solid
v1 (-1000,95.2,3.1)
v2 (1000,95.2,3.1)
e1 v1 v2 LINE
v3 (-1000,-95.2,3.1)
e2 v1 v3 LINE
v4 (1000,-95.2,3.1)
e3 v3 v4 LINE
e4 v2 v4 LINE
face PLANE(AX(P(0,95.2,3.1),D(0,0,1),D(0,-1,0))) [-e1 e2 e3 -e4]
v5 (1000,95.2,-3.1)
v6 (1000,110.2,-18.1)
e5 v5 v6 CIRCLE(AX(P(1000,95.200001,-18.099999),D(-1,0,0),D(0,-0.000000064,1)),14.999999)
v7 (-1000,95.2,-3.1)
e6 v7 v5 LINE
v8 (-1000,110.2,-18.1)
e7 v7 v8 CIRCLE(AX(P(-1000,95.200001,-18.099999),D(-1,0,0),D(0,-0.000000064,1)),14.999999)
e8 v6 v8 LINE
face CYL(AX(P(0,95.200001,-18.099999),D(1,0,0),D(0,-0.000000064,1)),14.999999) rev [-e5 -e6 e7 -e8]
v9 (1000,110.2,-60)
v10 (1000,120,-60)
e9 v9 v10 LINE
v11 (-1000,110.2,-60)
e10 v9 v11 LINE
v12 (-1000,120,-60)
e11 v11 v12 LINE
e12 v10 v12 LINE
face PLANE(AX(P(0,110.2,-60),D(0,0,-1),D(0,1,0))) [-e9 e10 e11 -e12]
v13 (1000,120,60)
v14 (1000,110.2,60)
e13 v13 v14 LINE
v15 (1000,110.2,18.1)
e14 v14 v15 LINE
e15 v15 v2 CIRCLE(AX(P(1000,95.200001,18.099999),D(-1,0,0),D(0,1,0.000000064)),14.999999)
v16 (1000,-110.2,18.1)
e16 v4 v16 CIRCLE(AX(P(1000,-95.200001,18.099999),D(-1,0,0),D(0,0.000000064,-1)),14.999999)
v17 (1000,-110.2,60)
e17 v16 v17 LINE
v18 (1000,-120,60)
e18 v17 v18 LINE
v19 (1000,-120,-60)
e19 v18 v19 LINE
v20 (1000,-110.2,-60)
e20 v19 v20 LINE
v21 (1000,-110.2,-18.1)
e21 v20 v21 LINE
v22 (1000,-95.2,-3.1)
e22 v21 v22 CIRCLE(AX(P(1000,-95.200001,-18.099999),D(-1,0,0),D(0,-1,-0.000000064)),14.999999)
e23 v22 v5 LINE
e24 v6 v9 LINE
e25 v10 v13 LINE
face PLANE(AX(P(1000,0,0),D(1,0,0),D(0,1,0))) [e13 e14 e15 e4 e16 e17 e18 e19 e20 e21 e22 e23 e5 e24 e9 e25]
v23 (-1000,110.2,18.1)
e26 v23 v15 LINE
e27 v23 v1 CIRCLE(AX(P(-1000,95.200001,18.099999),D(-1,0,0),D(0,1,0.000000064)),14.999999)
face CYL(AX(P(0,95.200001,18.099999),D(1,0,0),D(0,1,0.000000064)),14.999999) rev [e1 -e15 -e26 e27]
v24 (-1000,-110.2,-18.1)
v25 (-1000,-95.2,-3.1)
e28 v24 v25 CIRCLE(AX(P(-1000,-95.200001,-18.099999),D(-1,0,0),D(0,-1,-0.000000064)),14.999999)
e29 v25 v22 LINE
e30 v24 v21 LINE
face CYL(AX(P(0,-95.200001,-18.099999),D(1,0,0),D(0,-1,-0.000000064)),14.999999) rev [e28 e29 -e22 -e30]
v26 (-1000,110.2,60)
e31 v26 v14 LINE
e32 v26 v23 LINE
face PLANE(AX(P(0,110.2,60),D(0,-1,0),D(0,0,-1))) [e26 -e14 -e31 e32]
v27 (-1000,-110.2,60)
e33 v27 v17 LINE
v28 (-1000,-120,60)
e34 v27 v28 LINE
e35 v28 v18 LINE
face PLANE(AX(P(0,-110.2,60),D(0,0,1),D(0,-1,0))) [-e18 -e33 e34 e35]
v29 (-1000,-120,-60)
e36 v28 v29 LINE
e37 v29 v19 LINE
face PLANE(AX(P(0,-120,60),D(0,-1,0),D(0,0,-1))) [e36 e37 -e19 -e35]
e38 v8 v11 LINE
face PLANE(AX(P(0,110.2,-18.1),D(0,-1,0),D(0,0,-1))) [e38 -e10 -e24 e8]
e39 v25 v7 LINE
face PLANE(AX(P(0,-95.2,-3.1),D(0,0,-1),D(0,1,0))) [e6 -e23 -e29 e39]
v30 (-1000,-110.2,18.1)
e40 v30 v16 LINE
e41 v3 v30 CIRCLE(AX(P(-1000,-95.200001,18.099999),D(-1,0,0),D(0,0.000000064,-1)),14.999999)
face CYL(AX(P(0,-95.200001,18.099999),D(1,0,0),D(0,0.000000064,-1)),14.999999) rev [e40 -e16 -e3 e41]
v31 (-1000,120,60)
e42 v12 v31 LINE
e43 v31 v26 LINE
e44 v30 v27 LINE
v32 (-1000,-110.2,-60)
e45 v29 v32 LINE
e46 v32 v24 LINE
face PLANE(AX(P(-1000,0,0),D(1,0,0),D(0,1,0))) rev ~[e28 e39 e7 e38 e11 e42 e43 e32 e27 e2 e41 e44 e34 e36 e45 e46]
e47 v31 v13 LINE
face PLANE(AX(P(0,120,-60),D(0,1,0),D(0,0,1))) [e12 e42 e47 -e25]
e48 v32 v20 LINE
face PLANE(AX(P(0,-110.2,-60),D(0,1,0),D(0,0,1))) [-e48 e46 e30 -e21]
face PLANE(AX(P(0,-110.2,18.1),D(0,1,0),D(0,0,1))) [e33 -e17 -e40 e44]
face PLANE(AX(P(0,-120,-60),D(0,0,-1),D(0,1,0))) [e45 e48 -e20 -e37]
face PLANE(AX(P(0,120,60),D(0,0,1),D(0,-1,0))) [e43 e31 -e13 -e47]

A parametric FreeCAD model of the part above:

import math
import FreeCAD as App
import Part
import Sketcher

doc = App.newDocument("Part")
body = doc.addObject("PartDesign::Body", "Body")

# Sketch on YZ plane
sketch1 = doc.addObject("Sketcher::SketchObject", "Sketch")
body.addObject(sketch1)
sketch1.AttachmentSupport = (doc.YZ_Plane, [""])
sketch1.MapMode = "FlatFace"
sketch1.addGeometry(Part.LineSegment(App.Vector(120, -60, 0), App.Vector(120, 60, 0)), False)
sketch1.addGeometry(Part.LineSegment(App.Vector(120, 60, 0), App.Vector(110.2, 60, 0)), False)
sketch1.addGeometry(Part.LineSegment(App.Vector(110.2, 60, 0), App.Vector(110.2, 18.1, 0)), False)
sketch1.addGeometry(Part.ArcOfCircle(Part.Circle(App.Vector(95.200001, 18.099999, 0), App.Vector(0, 0, 1), 14.999999), math.radians(-90.000004), math.radians(0.000004)), False)
sketch1.addGeometry(Part.LineSegment(App.Vector(95.2, 3.1, 0), App.Vector(-95.2, 3.1, 0)), False)
sketch1.addGeometry(Part.ArcOfCircle(Part.Circle(App.Vector(-95.200001, 18.099999, 0), App.Vector(0, 0, 1), 14.999999), math.radians(179.999996), math.radians(270.000004)), False)
sketch1.addGeometry(Part.LineSegment(App.Vector(-110.2, 18.1, 0), App.Vector(-110.2, 60, 0)), False)
sketch1.addGeometry(Part.LineSegment(App.Vector(-110.2, 60, 0), App.Vector(-120, 60, 0)), False)
sketch1.addGeometry(Part.LineSegment(App.Vector(-120, 60, 0), App.Vector(-120, -60, 0)), False)
sketch1.addGeometry(Part.LineSegment(App.Vector(-120, -60, 0), App.Vector(-110.2, -60, 0)), False)
sketch1.addGeometry(Part.LineSegment(App.Vector(-110.2, -60, 0), App.Vector(-110.2, -18.1, 0)), False)
sketch1.addGeometry(Part.ArcOfCircle(Part.Circle(App.Vector(-95.200001, -18.099999, 0), App.Vector(0, 0, 1), 14.999999), math.radians(89.999996), math.radians(180.000004)), False)
sketch1.addGeometry(Part.LineSegment(App.Vector(-95.2, -3.1, 0), App.Vector(95.2, -3.1, 0)), False)
sketch1.addGeometry(Part.ArcOfCircle(Part.Circle(App.Vector(95.200001, -18.099999, 0), App.Vector(0, 0, 1), 14.999999), math.radians(-0.000004), math.radians(90.000004)), False)
sketch1.addGeometry(Part.LineSegment(App.Vector(110.2, -18.1, 0), App.Vector(110.2, -60, 0)), False)
sketch1.addGeometry(Part.LineSegment(App.Vector(110.2, -60, 0), App.Vector(120, -60, 0)), False)
sketch1.addConstraint(Sketcher.Constraint("Coincident", 0, 2, 1, 1))
sketch1.addConstraint(Sketcher.Constraint("Coincident", 1, 2, 2, 1))
sketch1.addConstraint(Sketcher.Constraint("Tangent", 2, 2, 3, 2))
sketch1.addConstraint(Sketcher.Constraint("Tangent", 3, 1, 4, 1))
sketch1.addConstraint(Sketcher.Constraint("Tangent", 4, 2, 5, 2))
sketch1.addConstraint(Sketcher.Constraint("Tangent", 5, 1, 6, 1))
sketch1.addConstraint(Sketcher.Constraint("Coincident", 6, 2, 7, 1))
sketch1.addConstraint(Sketcher.Constraint("Coincident", 7, 2, 8, 1))
sketch1.addConstraint(Sketcher.Constraint("Coincident", 8, 2, 9, 1))
sketch1.addConstraint(Sketcher.Constraint("Coincident", 9, 2, 10, 1))
sketch1.addConstraint(Sketcher.Constraint("Tangent", 10, 2, 11, 2))
sketch1.addConstraint(Sketcher.Constraint("Tangent", 11, 1, 12, 1))
sketch1.addConstraint(Sketcher.Constraint("Tangent", 12, 2, 13, 2))
sketch1.addConstraint(Sketcher.Constraint("Tangent", 13, 1, 14, 1))
sketch1.addConstraint(Sketcher.Constraint("Coincident", 14, 2, 15, 1))
sketch1.addConstraint(Sketcher.Constraint("Coincident", 15, 2, 0, 1))
sketch1.addConstraint(Sketcher.Constraint("Vertical", 0))
sketch1.addConstraint(Sketcher.Constraint("Horizontal", 1))
sketch1.addConstraint(Sketcher.Constraint("Vertical", 2))
sketch1.addConstraint(Sketcher.Constraint("Horizontal", 4))
sketch1.addConstraint(Sketcher.Constraint("Vertical", 6))
sketch1.addConstraint(Sketcher.Constraint("Horizontal", 7))
sketch1.addConstraint(Sketcher.Constraint("Vertical", 8))
sketch1.addConstraint(Sketcher.Constraint("Horizontal", 9))
sketch1.addConstraint(Sketcher.Constraint("Vertical", 10))
sketch1.addConstraint(Sketcher.Constraint("Horizontal", 12))
sketch1.addConstraint(Sketcher.Constraint("Vertical", 14))
sketch1.addConstraint(Sketcher.Constraint("Horizontal", 15))
sketch1.addConstraint(Sketcher.Constraint("Equal", 3, 5))
sketch1.addConstraint(Sketcher.Constraint("Equal", 5, 11))
sketch1.addConstraint(Sketcher.Constraint("Equal", 11, 13))
sketch1.addConstraint(Sketcher.Constraint("Symmetric", 3, 3, 11, 3, -1, 1))
sketch1.addConstraint(Sketcher.Constraint("Symmetric", 0, 2, 8, 2, -1, 1))
sketch1.addConstraint(Sketcher.Constraint("Symmetric", 6, 2, 14, 2, -1, 1))
sketch1.addConstraint(Sketcher.Constraint("Symmetric", 1, 2, 6, 2, -2))
sketch1.addConstraint(Sketcher.Constraint("Radius", 3, 14.999999))
sketch1.addConstraint(Sketcher.Constraint("DistanceY", 0, 1, 0, 2, 120.0))
sketch1.addConstraint(Sketcher.Constraint("DistanceX", 1, 2, 1, 1, 9.8))
sketch1.addConstraint(Sketcher.Constraint("DistanceX", 4, 2, 4, 1, 190.4))
sketch1.addConstraint(Sketcher.Constraint("DistanceY", 2, 2, 2, 1, 41.9))
pad1 = doc.addObject("PartDesign::Pad", "Pad")
body.addObject(pad1)
pad1.Profile = sketch1
pad1.Length = 2000
pad1.Midplane = True

doc.recompute()
